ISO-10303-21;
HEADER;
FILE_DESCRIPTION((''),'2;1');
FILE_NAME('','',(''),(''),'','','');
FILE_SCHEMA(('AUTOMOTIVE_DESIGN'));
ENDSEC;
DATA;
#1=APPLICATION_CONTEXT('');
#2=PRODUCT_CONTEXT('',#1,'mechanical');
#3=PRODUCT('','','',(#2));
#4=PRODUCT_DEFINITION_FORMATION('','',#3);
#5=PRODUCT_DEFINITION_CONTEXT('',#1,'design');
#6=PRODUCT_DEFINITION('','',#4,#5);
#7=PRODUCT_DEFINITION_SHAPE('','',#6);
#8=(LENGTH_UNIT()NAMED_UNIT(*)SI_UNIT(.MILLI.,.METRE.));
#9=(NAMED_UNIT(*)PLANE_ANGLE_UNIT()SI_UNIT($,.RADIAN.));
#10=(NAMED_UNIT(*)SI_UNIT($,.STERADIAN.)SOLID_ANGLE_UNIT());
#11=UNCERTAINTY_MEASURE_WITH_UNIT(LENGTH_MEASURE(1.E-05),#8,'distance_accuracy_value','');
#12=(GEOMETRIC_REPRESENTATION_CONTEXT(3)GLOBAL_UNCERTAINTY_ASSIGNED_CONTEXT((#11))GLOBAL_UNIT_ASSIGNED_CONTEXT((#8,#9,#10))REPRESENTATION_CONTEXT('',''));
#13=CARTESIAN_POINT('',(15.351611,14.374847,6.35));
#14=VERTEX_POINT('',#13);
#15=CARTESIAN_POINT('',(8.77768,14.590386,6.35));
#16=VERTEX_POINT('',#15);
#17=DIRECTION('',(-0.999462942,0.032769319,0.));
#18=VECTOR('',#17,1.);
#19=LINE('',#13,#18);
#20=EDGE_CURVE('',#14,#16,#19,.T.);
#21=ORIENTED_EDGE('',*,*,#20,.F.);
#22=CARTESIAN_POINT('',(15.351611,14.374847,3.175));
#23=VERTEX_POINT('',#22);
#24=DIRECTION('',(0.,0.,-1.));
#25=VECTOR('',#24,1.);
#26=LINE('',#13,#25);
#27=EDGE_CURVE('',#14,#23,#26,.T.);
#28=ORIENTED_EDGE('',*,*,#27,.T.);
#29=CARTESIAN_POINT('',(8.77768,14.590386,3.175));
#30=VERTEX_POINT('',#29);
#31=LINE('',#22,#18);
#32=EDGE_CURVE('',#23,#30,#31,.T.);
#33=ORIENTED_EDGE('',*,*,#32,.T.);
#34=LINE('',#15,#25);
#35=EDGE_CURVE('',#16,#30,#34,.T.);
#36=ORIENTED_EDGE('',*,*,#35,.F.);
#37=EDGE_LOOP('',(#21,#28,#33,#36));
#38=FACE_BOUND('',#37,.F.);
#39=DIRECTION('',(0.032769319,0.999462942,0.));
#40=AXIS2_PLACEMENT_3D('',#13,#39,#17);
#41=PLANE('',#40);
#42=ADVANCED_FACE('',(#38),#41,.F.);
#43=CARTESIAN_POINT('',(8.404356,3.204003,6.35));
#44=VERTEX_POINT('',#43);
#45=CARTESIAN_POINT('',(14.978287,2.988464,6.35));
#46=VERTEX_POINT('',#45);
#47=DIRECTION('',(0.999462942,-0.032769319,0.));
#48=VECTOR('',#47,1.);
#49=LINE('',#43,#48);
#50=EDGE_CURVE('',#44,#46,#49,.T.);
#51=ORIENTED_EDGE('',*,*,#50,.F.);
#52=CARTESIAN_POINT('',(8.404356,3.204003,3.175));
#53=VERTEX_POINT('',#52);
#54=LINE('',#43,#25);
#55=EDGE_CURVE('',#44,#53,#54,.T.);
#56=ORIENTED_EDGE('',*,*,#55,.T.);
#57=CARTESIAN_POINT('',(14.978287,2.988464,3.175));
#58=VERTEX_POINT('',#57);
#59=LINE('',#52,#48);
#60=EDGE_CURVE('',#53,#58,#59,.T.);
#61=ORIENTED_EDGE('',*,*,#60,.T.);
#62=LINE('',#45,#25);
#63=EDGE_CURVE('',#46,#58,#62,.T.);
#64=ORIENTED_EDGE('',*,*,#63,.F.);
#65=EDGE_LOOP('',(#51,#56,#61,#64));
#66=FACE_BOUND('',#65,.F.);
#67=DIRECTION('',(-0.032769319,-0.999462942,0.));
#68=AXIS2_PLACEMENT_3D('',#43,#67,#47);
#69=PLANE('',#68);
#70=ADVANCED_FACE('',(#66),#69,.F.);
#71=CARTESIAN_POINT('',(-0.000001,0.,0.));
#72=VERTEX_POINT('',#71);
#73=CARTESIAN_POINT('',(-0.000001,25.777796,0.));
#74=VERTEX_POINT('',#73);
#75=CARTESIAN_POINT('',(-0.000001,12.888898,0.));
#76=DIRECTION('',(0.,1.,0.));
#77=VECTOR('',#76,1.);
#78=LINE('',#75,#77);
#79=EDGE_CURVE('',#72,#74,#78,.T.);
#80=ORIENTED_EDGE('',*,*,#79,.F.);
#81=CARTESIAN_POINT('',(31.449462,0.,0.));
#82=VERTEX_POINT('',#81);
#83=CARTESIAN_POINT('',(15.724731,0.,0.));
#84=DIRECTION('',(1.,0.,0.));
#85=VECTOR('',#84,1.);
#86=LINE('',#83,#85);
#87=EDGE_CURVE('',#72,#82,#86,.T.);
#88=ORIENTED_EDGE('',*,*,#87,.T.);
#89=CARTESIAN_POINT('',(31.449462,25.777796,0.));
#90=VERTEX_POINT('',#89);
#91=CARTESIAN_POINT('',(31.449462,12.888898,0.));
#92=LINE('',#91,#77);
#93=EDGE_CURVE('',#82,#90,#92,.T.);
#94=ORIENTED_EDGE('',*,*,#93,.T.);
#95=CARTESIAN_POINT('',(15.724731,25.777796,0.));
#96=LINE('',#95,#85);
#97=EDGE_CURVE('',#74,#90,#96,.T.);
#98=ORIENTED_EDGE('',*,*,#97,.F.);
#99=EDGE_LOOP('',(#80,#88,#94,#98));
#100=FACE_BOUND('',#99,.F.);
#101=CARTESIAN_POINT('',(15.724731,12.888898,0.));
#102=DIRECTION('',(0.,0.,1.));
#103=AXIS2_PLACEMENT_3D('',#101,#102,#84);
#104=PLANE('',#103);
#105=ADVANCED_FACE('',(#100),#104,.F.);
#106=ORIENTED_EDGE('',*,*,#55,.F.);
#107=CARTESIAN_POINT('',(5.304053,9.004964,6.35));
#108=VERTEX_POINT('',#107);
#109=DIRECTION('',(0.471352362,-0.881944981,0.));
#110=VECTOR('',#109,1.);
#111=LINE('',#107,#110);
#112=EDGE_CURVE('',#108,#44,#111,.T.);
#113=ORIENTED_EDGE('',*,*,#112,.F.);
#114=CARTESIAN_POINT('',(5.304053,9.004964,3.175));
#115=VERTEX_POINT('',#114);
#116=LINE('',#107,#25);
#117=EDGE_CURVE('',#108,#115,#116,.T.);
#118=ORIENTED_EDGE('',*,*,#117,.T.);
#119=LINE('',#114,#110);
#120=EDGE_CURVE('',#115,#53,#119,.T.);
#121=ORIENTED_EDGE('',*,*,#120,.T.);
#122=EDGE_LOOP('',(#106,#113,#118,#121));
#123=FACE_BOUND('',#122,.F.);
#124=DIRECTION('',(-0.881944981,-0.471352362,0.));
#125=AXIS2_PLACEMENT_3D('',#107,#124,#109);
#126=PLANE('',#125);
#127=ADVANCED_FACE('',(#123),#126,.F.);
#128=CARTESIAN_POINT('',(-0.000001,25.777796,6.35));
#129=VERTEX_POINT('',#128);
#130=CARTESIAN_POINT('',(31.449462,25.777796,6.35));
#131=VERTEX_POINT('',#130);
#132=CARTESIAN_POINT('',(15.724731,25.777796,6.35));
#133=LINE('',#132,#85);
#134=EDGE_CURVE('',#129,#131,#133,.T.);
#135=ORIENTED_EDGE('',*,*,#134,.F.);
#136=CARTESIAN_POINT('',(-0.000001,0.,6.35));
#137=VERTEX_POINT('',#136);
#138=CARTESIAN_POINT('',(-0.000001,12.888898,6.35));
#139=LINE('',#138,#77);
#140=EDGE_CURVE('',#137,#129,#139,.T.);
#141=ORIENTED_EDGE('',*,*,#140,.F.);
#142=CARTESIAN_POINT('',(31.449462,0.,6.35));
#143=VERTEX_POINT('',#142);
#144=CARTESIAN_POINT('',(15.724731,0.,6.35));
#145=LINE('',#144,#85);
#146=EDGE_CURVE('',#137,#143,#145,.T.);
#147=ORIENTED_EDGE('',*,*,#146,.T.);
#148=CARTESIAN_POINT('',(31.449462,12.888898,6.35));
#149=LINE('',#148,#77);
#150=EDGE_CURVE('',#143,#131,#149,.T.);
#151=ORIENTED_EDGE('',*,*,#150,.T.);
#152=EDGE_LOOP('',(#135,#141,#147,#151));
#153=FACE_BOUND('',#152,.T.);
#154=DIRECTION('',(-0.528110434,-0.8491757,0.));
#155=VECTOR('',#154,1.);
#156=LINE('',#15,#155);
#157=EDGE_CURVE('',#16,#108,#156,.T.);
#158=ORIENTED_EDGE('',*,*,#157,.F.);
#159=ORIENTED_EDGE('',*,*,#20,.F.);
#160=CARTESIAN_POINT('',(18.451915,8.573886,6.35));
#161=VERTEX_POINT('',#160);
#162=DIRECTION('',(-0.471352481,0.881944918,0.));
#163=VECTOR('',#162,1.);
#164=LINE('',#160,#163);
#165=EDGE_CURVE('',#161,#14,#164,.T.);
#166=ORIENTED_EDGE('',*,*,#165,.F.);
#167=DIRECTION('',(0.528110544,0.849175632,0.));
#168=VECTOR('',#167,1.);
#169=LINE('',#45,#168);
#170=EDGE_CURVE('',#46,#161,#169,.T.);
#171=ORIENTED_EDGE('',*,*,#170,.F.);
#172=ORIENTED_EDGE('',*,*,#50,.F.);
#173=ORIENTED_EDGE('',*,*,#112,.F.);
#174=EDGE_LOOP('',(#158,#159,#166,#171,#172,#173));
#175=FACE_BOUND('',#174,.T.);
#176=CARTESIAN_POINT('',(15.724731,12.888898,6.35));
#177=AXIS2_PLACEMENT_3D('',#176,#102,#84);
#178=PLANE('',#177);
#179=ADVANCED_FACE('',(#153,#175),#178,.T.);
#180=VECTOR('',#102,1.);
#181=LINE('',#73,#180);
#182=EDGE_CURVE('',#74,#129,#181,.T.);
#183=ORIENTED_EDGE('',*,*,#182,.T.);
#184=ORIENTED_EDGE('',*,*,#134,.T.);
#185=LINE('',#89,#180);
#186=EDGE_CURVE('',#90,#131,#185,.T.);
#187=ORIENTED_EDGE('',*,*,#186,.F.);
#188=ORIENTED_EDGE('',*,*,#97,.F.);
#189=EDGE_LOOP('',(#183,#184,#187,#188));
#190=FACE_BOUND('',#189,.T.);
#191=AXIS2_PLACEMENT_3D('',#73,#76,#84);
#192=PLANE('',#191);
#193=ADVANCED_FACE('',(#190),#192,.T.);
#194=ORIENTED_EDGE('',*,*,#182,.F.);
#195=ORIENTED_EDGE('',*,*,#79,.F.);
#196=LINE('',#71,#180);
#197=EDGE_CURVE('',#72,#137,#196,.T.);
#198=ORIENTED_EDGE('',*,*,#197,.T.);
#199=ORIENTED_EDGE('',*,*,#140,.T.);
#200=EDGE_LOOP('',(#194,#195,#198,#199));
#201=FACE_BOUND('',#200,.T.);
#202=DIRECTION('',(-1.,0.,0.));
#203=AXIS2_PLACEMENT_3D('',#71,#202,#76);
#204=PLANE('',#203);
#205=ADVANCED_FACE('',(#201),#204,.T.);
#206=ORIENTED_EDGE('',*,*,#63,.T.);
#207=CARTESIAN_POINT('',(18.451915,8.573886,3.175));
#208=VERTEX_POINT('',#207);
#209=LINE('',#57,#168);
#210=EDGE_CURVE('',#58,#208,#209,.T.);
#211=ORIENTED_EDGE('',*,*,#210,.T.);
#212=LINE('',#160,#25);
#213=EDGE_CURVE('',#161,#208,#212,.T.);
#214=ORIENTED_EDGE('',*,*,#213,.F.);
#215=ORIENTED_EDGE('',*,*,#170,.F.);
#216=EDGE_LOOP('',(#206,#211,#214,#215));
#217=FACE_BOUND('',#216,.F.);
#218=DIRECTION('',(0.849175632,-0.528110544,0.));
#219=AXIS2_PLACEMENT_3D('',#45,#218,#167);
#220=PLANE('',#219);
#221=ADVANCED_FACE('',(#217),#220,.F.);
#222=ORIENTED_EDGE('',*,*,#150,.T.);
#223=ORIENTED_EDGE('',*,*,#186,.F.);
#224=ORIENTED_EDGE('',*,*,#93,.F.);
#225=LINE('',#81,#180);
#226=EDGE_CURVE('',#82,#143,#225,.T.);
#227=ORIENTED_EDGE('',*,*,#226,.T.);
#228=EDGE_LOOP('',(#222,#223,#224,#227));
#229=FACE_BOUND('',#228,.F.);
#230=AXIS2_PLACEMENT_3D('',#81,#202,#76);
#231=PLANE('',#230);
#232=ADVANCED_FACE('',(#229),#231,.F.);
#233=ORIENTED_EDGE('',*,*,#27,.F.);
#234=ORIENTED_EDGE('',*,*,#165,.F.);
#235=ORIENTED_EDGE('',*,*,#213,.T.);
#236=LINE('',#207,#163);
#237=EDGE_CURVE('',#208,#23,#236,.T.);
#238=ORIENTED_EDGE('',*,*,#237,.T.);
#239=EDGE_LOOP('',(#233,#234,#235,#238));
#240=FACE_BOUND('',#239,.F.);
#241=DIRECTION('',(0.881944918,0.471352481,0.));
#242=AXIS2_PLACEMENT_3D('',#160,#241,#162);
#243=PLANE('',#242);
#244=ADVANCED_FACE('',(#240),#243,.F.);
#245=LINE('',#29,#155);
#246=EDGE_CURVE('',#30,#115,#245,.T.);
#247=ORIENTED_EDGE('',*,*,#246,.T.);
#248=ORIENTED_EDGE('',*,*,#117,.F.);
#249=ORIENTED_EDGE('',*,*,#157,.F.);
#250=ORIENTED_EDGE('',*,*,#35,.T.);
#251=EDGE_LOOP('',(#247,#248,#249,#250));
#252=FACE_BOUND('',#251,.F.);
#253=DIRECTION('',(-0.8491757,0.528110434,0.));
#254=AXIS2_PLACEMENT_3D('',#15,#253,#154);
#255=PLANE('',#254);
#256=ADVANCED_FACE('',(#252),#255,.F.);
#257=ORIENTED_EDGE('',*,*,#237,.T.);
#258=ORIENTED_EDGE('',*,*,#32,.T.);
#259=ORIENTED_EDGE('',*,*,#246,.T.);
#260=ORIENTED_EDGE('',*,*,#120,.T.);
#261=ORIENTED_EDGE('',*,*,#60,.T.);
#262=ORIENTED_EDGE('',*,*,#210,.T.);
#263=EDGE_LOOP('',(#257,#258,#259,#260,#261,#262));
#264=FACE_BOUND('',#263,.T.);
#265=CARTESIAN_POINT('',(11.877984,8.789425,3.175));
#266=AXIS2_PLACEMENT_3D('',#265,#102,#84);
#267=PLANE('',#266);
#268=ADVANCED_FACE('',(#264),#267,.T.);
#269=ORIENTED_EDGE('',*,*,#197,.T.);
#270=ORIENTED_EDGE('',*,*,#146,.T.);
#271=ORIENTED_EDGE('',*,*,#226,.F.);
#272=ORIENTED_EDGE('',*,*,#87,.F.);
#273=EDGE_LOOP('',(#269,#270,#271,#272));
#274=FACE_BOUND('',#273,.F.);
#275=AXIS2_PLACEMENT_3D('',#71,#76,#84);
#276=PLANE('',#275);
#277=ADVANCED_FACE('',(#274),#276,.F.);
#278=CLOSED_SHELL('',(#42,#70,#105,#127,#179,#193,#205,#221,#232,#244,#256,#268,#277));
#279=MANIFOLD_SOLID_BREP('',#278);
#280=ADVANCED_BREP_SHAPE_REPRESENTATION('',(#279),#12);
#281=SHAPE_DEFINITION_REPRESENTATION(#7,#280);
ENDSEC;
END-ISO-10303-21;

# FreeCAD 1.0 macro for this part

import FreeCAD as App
import Part
import Sketcher

V = App.Vector
Q = App.Units.Quantity

doc = App.newDocument("Part")
params = doc.addObject("Spreadsheet::Sheet", "Params")
for row, (alias, value) in enumerate([
    ("pad1_length", "0.25 in"),
    ("pocket1_length", "0.125 in"),
], start=1):
    params.set(f"A{row}", alias)
    params.set(f"B{row}", "=" + value)
    params.setAlias(f"B{row}", alias)

body = doc.addObject("PartDesign::Body", "Body")

# Sketch on XY plane
sketch1 = body.newObject("Sketcher::SketchObject", "Sketch")
sketch1.AttachmentSupport = (doc.getObject("XY_Plane"), [""])
sketch1.MapMode = "FlatFace"
sketch1.addGeometry([
    Part.LineSegment(V(0, 26, 0), V(0, 0, 0)),
    Part.LineSegment(V(0, 0, 0), V(31, 0, 0)),
    Part.LineSegment(V(31, 0, 0), V(31, 26, 0)),
    Part.LineSegment(V(31, 26, 0), V(0, 26, 0)),
], False)
sketch1.addConstraint([
    Sketcher.Constraint("Coincident", 0, 2, 1, 1),
    Sketcher.Constraint("Coincident", 1, 2, 2, 1),
    Sketcher.Constraint("Coincident", 2, 2, 3, 1),
    Sketcher.Constraint("Coincident", 3, 2, 0, 1),
    Sketcher.Constraint("Vertical", 0),
    Sketcher.Constraint("Horizontal", 1),
    Sketcher.Constraint("Vertical", 2),
    Sketcher.Constraint("Horizontal", 3),
    Sketcher.Constraint("Coincident", 0, 2, -1, 1),
    Sketcher.Constraint("DistanceX", 1, 1, 1, 2, Q("31.449463 mm")),
    Sketcher.Constraint("DistanceY", 0, 2, 0, 1, Q("25.777796 mm")),
])
pad1 = body.newObject("PartDesign::Pad", "Pad")
pad1.Profile = sketch1
pad1.setExpression("Length", "Params.pad1_length")

# Sketch on XY plane
sketch2 = body.newObject("Sketcher::SketchObject", "Sketch001")
sketch2.AttachmentSupport = (doc.getObject("XY_Plane"), [""])
sketch2.MapMode = "FlatFace"
sketch2.AttachmentOffset = App.Placement(V(0, 0, 0.25 * 25.4), App.Rotation())
sketch2.addGeometry([
    Part.LineSegment(V(18, 9, 0), V(15, 14, 0)),  # 0
    Part.LineSegment(V(15, 14, 0), V(9, 15, 0)),  # 1
    Part.LineSegment(V(9, 15, 0), V(5, 9, 0)),  # 2
    Part.LineSegment(V(5, 9, 0), V(8, 3, 0)),  # 3
    Part.LineSegment(V(8, 3, 0), V(15, 3, 0)),  # 4
    Part.LineSegment(V(15, 3, 0), V(18, 9, 0)),  # 5
], False)
sketch2.addConstraint([
    Sketcher.Constraint("Coincident", 0, 2, 1, 1),
    Sketcher.Constraint("Coincident", 1, 2, 2, 1),
    Sketcher.Constraint("Coincident", 2, 2, 3, 1),
    Sketcher.Constraint("Coincident", 3, 2, 4, 1),
    Sketcher.Constraint("Coincident", 4, 2, 5, 1),
    Sketcher.Constraint("Coincident", 5, 2, 0, 1),
    Sketcher.Constraint("Parallel", 0, 3),
    Sketcher.Constraint("Parallel", 1, 4),
    Sketcher.Constraint("Parallel", 2, 5),
    Sketcher.Constraint("Equal", 0, 1),
    Sketcher.Constraint("Equal", 1, 2),
    Sketcher.Constraint("Equal", 2, 3),
    Sketcher.Constraint("DistanceY", 4, 2, 2, 2, Q("6.0165 mm")),
    Sketcher.Constraint("DistanceX", -1, 1, 0, 2, Q("15.351611 mm")),
    Sketcher.Constraint("DistanceX", -1, 1, 1, 2, Q("8.77768 mm")),
    Sketcher.Constraint("DistanceY", 0, 2, 1, 2, Q("0.215539 mm")),
    Sketcher.Constraint("DistanceY", 4, 2, 5, 2, Q("5.585422 mm")),
    Sketcher.Constraint("DistanceY", -1, 1, 0, 2, Q("14.374847 mm")),
])
pocket1 = body.newObject("PartDesign::Pocket", "Pocket")
pocket1.Profile = sketch2
pocket1.setExpression("Length", "Params.pocket1_length")

doc.recompute()
